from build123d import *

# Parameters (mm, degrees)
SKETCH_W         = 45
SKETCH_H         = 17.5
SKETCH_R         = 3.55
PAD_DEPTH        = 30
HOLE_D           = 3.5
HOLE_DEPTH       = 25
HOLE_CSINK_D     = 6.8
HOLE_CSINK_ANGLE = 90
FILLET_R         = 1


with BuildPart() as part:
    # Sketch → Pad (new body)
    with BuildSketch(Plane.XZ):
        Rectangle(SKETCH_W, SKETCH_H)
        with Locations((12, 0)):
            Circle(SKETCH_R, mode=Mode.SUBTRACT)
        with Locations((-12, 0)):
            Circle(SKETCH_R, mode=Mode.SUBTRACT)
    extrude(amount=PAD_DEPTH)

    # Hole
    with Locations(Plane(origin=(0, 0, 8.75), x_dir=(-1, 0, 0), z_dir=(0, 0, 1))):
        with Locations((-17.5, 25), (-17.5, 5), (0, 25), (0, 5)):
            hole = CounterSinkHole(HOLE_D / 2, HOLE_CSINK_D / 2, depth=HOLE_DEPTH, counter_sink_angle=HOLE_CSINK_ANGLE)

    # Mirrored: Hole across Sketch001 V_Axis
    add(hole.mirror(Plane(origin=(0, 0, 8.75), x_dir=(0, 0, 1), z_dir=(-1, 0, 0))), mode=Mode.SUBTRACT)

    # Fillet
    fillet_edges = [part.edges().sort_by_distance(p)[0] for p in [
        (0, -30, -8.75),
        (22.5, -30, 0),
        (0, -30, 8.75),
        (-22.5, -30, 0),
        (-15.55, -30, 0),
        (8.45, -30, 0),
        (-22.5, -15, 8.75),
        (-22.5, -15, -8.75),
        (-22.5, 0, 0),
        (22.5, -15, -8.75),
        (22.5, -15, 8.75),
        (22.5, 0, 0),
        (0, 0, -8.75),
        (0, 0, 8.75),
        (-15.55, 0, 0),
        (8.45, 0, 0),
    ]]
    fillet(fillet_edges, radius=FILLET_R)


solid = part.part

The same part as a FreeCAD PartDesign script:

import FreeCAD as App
import Part
import Sketcher

V = App.Vector
Q = App.Units.Quantity


def edges_at(feature, points):
    """Names of the edges that pass closest to the given points."""
    edges = feature.Shape.Edges
    near = lambda p: min(range(len(edges)), key=lambda i: edges[i].distToShape(Part.Vertex(*p))[0])
    return sorted({f"Edge{near(p) + 1}" for p in points})

doc = App.newDocument("Part")
params = doc.addObject("Spreadsheet::Sheet", "Params")
for row, (alias, value) in enumerate([
    ("sketch1_diameter", "7.1 mm"),
    ("sketch1_width", "45 mm"),
    ("sketch1_height", "17.5 mm"),
    ("pad1_length", "30 mm"),
    ("sketch2_diameter", "3.5 mm"),
    ("hole_diameter", "3.5 mm"),
    ("hole_depth", "25 mm"),
    ("hole_csink_diameter", "6.8 mm"),
    ("fillet_radius", "1 mm"),
], start=1):
    params.set(f"A{row}", alias)
    params.set(f"B{row}", "=" + value)
    params.setAlias(f"B{row}", alias)

body = doc.addObject("PartDesign::Body", "Body")

sketch1 = body.newObject("Sketcher::SketchObject", "Sketch")
sketch1.AttachmentSupport = (doc.getObject("XZ_Plane"), [""])
sketch1.MapMode = "FlatFace"
sketch1.addGeometry(Part.LineSegment(V(-22.5, 8.8, 0), V(-22.5, -8.8, 0)), False)
sketch1.addGeometry(Part.LineSegment(V(-22.5, -8.8, 0), V(22.5, -8.8, 0)), False)
sketch1.addGeometry(Part.LineSegment(V(22.5, -8.8, 0), V(22.5, 8.8, 0)), False)
sketch1.addGeometry(Part.LineSegment(V(22.5, 8.8, 0), V(-22.5, 8.8, 0)), False)
sketch1.addGeometry(Part.Circle(V(-12, 0, 0), V(0, 0, 1), 3.5), False)
sketch1.addGeometry(Part.Circle(V(12, 0, 0), V(0, 0, 1), 3.5), False)
sketch1.addConstraint(Sketcher.Constraint("Coincident", 0, 2, 1, 1))
sketch1.addConstraint(Sketcher.Constraint("Coincident", 1, 2, 2, 1))
sketch1.addConstraint(Sketcher.Constraint("Coincident", 2, 2, 3, 1))
sketch1.addConstraint(Sketcher.Constraint("Coincident", 3, 2, 0, 1))
sketch1.addConstraint(Sketcher.Constraint("Vertical", 0))
sketch1.addConstraint(Sketcher.Constraint("Horizontal", 1))
sketch1.addConstraint(Sketcher.Constraint("Vertical", 2))
sketch1.addConstraint(Sketcher.Constraint("Horizontal", 3))
sketch1.addConstraint(Sketcher.Constraint("Equal", 4, 5))
sketch1.addConstraint(Sketcher.Constraint("Symmetric", 4, 3, 5, 3, -1, 1))
sketch1.addConstraint(Sketcher.Constraint("Symmetric", 0, 2, 2, 2, -1, 1))
sketch1.addConstraint(Sketcher.Constraint("PointOnObject", 4, 3, -1))
sketch1.addConstraint(Sketcher.Constraint("Diameter", 4, Q("7.1 mm")))
sketch1.addConstraint(Sketcher.Constraint("DistanceX", 1, 1, 1, 2, Q("45 mm")))
sketch1.addConstraint(Sketcher.Constraint("DistanceY", 0, 2, 0, 1, Q("17.5 mm")))
sketch1.addConstraint(Sketcher.Constraint("DistanceX", 4, 3, -1, 1, Q("12 mm")))
sketch1.setExpression("Constraints[12]", "Params.sketch1_diameter")
sketch1.setExpression("Constraints[13]", "Params.sketch1_width")
sketch1.setExpression("Constraints[14]", "Params.sketch1_height")
pad1 = body.newObject("PartDesign::Pad", "Pad")
pad1.Profile = sketch1
pad1.setExpression("Length", "Params.pad1_length")

sketch2 = body.newObject("Sketcher::SketchObject", "Sketch001")
sketch2.AttachmentSupport = (doc.getObject("XY_Plane"), [""])
sketch2.MapMode = "FlatFace"
sketch2.AttachmentOffset = App.Placement(V(0, 0, 8.75), App.Rotation())
sketch2.addGeometry(Part.Circle(V(17.5, -25, 0), V(0, 0, 1), 1.8), False)
sketch2.addGeometry(Part.Circle(V(17.5, -5, 0), V(0, 0, 1), 1.8), False)
sketch2.addGeometry(Part.Circle(V(0, -25, 0), V(0, 0, 1), 1.8), False)
sketch2.addGeometry(Part.Circle(V(0, -5, 0), V(0, 0, 1), 1.8), False)
sketch2.addConstraint(Sketcher.Constraint("Equal", 0, 1))
sketch2.addConstraint(Sketcher.Constraint("Equal", 1, 2))
sketch2.addConstraint(Sketcher.Constraint("Equal", 2, 3))
sketch2.addConstraint(Sketcher.Constraint("PointOnObject", 2, 3, -2))
sketch2.addConstraint(Sketcher.Constraint("PointOnObject", 3, 3, -2))
sketch2.addConstraint(Sketcher.Constraint("Horizontal", 0, 3, 2, 3))
sketch2.addConstraint(Sketcher.Constraint("Horizontal", 1, 3, 3, 3))
sketch2.addConstraint(Sketcher.Constraint("Vertical", 0, 3, 1, 3))
sketch2.addConstraint(Sketcher.Constraint("Diameter", 0, Q("3.5 mm")))
sketch2.addConstraint(Sketcher.Constraint("DistanceY", 0, 3, -1, 1, Q("25 mm")))
sketch2.addConstraint(Sketcher.Constraint("DistanceY", 1, 3, -1, 1, Q("5 mm")))
sketch2.addConstraint(Sketcher.Constraint("DistanceX", -1, 1, 0, 3, Q("17.5 mm")))
sketch2.setExpression("Constraints[8]", "Params.sketch2_diameter")
doc.recompute()
hole = body.newObject("PartDesign::Hole", "Hole")
hole.Profile = sketch2
hole.ThreadType = "None"
hole.setExpression("Diameter", "Params.hole_diameter")
hole.DepthType = "Dimension"
hole.setExpression("Depth", "Params.hole_depth")
hole.DrillPoint = "Flat"
hole.HoleCutType = "Countersink"
hole.setExpression("HoleCutDiameter", "Params.hole_csink_diameter")
hole.HoleCutCountersinkAngle = 90
doc.recompute()

mirrored = body.newObject("PartDesign::Mirrored", "Mirrored")
mirrored.Originals = [hole]
mirrored.MirrorPlane = (doc.getObject("YZ_Plane"), [""])
body.Tip = mirrored
doc.recompute()

fillet = body.newObject("PartDesign::Fillet", "Fillet")
fillet.Base = (mirrored, edges_at(mirrored, [
    (0, -30, -8.75),
    (22.5, -30, 0),
    (0, -30, 8.75),
    (-22.5, -30, 0),
    (-15.55, -30, 0),
    (8.45, -30, 0),
    (-22.5, -15, 8.75),
    (-22.5, -15, -8.75),
    (-22.5, 0, 0),
    (22.5, -15, -8.75),
    (22.5, -15, 8.75),
    (22.5, 0, 0),
    (0, 0, -8.75),
    (0, 0, 8.75),
    (-15.55, 0, 0),
    (8.45, 0, 0),
]))
fillet.setExpression("Radius", "Params.fillet_radius")

doc.recompute()
